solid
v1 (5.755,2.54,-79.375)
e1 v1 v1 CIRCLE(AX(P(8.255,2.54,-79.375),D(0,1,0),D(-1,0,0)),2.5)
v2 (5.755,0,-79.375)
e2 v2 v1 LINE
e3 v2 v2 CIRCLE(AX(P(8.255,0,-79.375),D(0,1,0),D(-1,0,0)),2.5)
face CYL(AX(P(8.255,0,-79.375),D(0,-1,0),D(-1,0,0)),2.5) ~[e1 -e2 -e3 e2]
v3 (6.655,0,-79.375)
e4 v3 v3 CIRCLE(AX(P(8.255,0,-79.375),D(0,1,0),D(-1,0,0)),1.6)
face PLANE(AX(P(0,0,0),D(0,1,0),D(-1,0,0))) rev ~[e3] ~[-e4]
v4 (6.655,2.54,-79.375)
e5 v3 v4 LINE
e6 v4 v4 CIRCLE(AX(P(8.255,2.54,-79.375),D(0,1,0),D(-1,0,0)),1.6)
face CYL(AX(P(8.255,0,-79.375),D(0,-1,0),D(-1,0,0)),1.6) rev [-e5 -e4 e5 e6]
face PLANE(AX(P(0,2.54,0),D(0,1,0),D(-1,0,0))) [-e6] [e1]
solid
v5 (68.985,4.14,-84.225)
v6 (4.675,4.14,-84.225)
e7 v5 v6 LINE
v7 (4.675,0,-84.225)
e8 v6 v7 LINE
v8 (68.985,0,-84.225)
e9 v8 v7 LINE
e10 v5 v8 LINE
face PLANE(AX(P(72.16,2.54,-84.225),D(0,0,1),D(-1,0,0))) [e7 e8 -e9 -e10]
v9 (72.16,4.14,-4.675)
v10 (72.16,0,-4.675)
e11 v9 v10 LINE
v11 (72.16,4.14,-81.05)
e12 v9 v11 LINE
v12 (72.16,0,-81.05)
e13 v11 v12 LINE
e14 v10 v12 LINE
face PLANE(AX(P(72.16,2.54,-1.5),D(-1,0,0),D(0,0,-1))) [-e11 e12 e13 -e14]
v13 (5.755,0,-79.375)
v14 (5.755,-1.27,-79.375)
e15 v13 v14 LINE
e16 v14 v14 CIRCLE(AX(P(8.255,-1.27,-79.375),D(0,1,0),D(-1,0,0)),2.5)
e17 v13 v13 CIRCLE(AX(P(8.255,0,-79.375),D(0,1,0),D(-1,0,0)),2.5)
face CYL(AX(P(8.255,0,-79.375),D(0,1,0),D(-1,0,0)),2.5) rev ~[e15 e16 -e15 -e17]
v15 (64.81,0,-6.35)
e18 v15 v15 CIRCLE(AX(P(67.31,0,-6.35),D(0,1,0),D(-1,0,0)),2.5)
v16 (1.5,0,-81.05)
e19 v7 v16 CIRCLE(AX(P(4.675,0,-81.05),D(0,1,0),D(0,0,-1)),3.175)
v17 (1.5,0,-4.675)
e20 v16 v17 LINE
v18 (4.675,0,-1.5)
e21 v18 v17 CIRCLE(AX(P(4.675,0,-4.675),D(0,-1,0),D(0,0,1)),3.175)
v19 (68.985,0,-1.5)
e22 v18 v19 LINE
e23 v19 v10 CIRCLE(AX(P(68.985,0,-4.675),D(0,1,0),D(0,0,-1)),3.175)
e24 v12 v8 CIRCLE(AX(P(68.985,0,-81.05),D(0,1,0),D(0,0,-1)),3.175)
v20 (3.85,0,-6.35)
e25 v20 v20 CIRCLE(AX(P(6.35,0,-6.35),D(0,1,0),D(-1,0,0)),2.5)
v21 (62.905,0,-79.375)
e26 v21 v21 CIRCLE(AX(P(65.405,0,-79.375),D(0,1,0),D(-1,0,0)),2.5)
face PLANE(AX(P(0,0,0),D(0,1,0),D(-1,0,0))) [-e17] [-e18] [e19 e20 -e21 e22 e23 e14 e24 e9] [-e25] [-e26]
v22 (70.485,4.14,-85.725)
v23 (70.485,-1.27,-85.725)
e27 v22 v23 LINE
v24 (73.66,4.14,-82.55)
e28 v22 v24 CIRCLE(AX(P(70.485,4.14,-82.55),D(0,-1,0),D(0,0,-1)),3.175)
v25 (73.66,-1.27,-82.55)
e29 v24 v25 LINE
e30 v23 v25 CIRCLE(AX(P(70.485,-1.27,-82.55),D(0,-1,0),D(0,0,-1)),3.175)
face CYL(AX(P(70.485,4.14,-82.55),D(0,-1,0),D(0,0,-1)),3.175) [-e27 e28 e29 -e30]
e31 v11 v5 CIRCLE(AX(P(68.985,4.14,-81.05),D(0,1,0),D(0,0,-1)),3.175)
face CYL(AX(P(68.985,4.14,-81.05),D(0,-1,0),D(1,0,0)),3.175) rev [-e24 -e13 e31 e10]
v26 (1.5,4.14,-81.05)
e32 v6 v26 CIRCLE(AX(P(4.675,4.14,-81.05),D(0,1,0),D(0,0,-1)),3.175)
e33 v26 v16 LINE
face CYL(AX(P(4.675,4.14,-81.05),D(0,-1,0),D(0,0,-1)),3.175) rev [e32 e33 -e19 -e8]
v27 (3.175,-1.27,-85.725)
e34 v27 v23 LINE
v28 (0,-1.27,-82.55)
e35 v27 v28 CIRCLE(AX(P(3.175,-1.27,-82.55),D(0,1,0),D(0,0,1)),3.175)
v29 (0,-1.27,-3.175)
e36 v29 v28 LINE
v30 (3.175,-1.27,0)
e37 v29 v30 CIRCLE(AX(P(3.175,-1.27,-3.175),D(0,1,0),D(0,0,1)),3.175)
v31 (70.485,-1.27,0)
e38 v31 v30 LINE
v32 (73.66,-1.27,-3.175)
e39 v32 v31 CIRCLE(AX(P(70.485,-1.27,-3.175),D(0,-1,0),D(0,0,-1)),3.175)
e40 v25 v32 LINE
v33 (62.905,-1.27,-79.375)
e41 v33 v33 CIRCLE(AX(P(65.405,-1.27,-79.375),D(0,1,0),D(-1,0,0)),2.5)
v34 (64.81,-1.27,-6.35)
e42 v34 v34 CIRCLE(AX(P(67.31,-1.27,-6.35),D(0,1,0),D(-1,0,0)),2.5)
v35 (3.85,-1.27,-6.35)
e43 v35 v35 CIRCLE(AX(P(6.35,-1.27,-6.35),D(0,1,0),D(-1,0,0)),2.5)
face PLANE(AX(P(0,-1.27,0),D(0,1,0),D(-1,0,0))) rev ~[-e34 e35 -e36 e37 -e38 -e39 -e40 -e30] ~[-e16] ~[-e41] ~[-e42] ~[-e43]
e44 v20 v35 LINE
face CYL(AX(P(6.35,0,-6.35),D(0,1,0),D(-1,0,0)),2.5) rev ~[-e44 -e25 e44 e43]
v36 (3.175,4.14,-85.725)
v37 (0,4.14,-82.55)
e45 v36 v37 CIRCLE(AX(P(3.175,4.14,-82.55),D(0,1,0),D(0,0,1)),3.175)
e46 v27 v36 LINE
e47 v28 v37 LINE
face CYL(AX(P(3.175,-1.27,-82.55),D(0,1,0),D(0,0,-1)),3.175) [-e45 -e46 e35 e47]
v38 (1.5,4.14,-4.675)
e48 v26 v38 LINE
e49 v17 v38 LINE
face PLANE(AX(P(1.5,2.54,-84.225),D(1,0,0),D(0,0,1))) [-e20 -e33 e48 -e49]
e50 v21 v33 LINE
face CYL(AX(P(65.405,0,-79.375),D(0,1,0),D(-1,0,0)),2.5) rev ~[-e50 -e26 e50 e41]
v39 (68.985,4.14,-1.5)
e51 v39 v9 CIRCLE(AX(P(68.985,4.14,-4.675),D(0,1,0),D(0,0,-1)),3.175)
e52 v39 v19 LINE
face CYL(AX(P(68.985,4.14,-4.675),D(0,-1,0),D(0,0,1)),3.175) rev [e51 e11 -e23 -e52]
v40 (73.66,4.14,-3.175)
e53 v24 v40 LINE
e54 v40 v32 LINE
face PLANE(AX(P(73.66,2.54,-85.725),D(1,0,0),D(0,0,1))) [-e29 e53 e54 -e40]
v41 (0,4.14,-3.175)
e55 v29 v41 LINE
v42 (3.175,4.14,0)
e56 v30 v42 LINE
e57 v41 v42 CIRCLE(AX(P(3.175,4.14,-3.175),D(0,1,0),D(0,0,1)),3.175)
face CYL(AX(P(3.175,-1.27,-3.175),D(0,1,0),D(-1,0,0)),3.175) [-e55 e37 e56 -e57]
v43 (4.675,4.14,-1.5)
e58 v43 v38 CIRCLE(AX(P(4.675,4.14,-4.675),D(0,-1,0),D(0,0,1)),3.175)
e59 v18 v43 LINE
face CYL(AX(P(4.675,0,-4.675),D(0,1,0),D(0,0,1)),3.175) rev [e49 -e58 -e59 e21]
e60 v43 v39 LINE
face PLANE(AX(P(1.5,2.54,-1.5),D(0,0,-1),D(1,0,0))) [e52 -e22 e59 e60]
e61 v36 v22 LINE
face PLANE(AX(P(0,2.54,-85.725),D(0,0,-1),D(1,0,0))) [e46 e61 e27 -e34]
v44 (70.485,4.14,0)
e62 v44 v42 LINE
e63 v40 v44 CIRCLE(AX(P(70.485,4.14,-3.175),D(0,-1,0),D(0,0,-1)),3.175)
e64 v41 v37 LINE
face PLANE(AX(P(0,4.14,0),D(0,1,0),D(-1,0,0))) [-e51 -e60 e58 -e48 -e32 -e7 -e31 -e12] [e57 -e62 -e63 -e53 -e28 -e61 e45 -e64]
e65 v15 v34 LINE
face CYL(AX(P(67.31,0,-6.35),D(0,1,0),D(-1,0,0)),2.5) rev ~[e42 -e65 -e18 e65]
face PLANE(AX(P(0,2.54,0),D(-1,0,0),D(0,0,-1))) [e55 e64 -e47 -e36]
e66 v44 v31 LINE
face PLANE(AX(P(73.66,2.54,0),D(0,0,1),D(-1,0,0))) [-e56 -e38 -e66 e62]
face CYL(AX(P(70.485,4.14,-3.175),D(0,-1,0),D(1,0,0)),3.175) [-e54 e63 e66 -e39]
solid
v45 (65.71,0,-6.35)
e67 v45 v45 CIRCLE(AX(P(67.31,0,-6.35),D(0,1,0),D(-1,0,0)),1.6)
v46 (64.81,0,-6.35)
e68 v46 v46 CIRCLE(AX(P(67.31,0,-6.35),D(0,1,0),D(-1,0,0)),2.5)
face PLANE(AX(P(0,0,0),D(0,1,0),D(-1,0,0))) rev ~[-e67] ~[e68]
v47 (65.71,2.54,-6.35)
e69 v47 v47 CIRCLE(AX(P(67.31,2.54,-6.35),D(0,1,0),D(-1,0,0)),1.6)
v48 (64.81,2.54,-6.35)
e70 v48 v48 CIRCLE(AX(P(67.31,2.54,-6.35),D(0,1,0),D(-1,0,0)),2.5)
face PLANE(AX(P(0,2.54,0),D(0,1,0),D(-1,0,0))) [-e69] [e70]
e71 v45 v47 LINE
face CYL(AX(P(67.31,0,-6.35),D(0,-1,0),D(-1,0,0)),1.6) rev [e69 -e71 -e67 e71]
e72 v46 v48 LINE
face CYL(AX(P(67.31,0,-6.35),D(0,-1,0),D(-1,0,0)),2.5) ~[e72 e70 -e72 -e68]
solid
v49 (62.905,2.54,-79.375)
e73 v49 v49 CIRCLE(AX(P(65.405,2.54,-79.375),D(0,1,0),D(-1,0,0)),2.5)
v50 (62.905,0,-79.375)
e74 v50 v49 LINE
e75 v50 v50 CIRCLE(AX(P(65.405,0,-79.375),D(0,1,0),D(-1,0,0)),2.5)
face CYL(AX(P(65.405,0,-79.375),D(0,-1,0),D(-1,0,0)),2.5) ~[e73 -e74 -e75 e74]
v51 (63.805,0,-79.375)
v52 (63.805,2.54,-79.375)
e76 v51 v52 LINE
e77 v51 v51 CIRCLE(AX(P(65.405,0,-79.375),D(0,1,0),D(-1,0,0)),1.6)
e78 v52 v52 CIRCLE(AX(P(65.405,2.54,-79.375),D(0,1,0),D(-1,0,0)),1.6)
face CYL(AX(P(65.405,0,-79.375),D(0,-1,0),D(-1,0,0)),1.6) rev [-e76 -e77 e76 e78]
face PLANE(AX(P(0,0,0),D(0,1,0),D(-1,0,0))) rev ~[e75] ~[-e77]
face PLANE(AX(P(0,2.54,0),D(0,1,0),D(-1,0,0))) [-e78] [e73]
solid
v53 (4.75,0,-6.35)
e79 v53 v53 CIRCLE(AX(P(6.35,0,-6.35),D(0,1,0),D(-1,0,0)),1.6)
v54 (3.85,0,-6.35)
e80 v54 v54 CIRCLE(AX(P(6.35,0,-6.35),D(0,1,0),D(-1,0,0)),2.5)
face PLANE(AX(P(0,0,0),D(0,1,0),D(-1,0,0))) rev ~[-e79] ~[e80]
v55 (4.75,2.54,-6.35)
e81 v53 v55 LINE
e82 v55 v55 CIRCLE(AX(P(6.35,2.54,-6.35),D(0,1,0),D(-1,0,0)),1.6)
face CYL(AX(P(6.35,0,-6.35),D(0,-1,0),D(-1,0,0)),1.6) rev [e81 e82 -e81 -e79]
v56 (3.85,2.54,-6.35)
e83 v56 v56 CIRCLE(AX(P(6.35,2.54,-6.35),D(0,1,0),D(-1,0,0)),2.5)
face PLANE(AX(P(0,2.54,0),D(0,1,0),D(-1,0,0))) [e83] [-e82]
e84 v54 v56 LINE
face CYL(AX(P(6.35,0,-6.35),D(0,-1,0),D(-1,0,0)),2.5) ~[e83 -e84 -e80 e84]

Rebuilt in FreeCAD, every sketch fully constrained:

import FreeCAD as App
import Part
import Sketcher
Q = App.Units.Quantity


def edges_at(feature, points):
    """Names of the edges that pass closest to the given points."""
    edges = feature.Shape.Edges
    near = lambda p: min(range(len(edges)), key=lambda i: edges[i].distToShape(Part.Vertex(*p))[0])
    return sorted({f"Edge{near(p) + 1}" for p in points})

doc = App.newDocument("Part")
params = doc.addObject("Spreadsheet::Sheet", "Params")
for row, (alias, value) in enumerate([
    ("sketch1_width", "2.9 in"),
    ("sketch1_height", "3.375 in"),
    ("pad1_length", "0.05 in"),
    ("sketch2_width", "2.9 in"),
    ("sketch2_height", "3.375 in"),
    ("pad2_length", "0.1 in"),
    ("sketch3_width", "2.9 in"),
    ("sketch3_height", "3.375 in"),
    ("pad3_length", "0.0629921 in"),
    ("fillet_radius", "0.125 in"),
], start=1):
    params.set(f"A{row}", alias)
    params.set(f"B{row}", "=" + value)
    params.setAlias(f"B{row}", alias)

body = doc.addObject("PartDesign::Body", "Body")
body.AllowCompound = True

sketch1 = body.newObject("Sketcher::SketchObject", "Sketch")
sketch1.AttachmentSupport = (doc.getObject("XZ_Plane"), [""])
sketch1.MapMode = "FlatFace"
sketch1.addGeometry(Part.LineSegment(App.Vector(73.7, -85.7, 0), App.Vector(0, -85.7, 0)), False)
sketch1.addGeometry(Part.LineSegment(App.Vector(0, -85.7, 0), App.Vector(0, 0, 0)), False)
sketch1.addGeometry(Part.LineSegment(App.Vector(0, 0, 0), App.Vector(73.7, 0, 0)), False)
sketch1.addGeometry(Part.LineSegment(App.Vector(73.7, 0, 0), App.Vector(73.7, -85.7, 0)), False)
sketch1.addGeometry(Part.Circle(App.Vector(65.4, -79.4, 0), App.Vector(0, 0, 1), 2.5), False)
sketch1.addGeometry(Part.Circle(App.Vector(8.3, -79.4, 0), App.Vector(0, 0, 1), 2.5), False)
sketch1.addGeometry(Part.Circle(App.Vector(67.3, -6.3, 0), App.Vector(0, 0, 1), 2.5), False)
sketch1.addGeometry(Part.Circle(App.Vector(6.3, -6.3, 0), App.Vector(0, 0, 1), 2.5), False)
sketch1.addConstraint(Sketcher.Constraint("Coincident", 0, 2, 1, 1))
sketch1.addConstraint(Sketcher.Constraint("Coincident", 1, 2, 2, 1))
sketch1.addConstraint(Sketcher.Constraint("Coincident", 2, 2, 3, 1))
sketch1.addConstraint(Sketcher.Constraint("Coincident", 3, 2, 0, 1))
sketch1.addConstraint(Sketcher.Constraint("Horizontal", 0))
sketch1.addConstraint(Sketcher.Constraint("Vertical", 1))
sketch1.addConstraint(Sketcher.Constraint("Horizontal", 2))
sketch1.addConstraint(Sketcher.Constraint("Vertical", 3))
sketch1.addConstraint(Sketcher.Constraint("Coincident", 1, 2, -1, 1))
sketch1.addConstraint(Sketcher.Constraint("Equal", 4, 5))
sketch1.addConstraint(Sketcher.Constraint("Equal", 5, 6))
sketch1.addConstraint(Sketcher.Constraint("Equal", 6, 7))
sketch1.addConstraint(Sketcher.Constraint("Horizontal", 4, 3, 5, 3))
sketch1.addConstraint(Sketcher.Constraint("Horizontal", 6, 3, 7, 3))
sketch1.addConstraint(Sketcher.Constraint("DistanceX", 7, 3, 6, 3, Q("2.4 in")))
sketch1.addConstraint(Sketcher.Constraint("Diameter", 4, Q("5 mm")))
sketch1.addConstraint(Sketcher.Constraint("DistanceX", 5, 3, 4, 3, Q("2.25 in")))
sketch1.addConstraint(Sketcher.Constraint("DistanceX", 0, 2, 0, 1, Q("2.9 in")))
sketch1.addConstraint(Sketcher.Constraint("DistanceY", 4, 3, 6, 3, Q("2.875 in")))
sketch1.addConstraint(Sketcher.Constraint("DistanceY", 1, 1, 1, 2, Q("3.375 in")))
sketch1.addConstraint(Sketcher.Constraint("DistanceX", -1, 1, 6, 3, Q("2.65 in")))
sketch1.addConstraint(Sketcher.Constraint("DistanceY", 6, 3, -1, 1, Q("0.25 in")))
sketch1.addConstraint(Sketcher.Constraint("DistanceX", -1, 1, 4, 3, Q("2.575 in")))
sketch1.setExpression("Constraints[17]", "Params.sketch1_width")
sketch1.setExpression("Constraints[19]", "Params.sketch1_height")
pad1 = body.newObject("PartDesign::Pad", "Pad")
pad1.Profile = sketch1
pad1.setExpression("Length", "Params.pad1_length")

sketch2 = body.newObject("Sketcher::SketchObject", "Sketch001")
sketch2.AttachmentSupport = (doc.getObject("XZ_Plane"), [""])
sketch2.MapMode = "FlatFace"
sketch2.addGeometry(Part.LineSegment(App.Vector(73.7, -85.7, 0), App.Vector(0, -85.7, 0)), False)
sketch2.addGeometry(Part.LineSegment(App.Vector(0, -85.7, 0), App.Vector(0, 0, 0)), False)
sketch2.addGeometry(Part.LineSegment(App.Vector(0, 0, 0), App.Vector(73.7, 0, 0)), False)
sketch2.addGeometry(Part.LineSegment(App.Vector(73.7, 0, 0), App.Vector(73.7, -85.7, 0)), False)
sketch2.addGeometry(Part.LineSegment(App.Vector(72.2, -1.5, 0), App.Vector(1.5, -1.5, 0)), False)
sketch2.addGeometry(Part.LineSegment(App.Vector(1.5, -1.5, 0), App.Vector(1.5, -84.2, 0)), False)
sketch2.addGeometry(Part.LineSegment(App.Vector(1.5, -84.2, 0), App.Vector(72.2, -84.2, 0)), False)
sketch2.addGeometry(Part.LineSegment(App.Vector(72.2, -84.2, 0), App.Vector(72.2, -1.5, 0)), False)
sketch2.addGeometry(Part.Circle(App.Vector(6.3, -6.3, 0), App.Vector(0, 0, 1), 2.5), False)
sketch2.addGeometry(Part.Circle(App.Vector(6.3, -6.3, 0), App.Vector(0, 0, 1), 1.6), False)
sketch2.addGeometry(Part.Circle(App.Vector(8.3, -79.4, 0), App.Vector(0, 0, 1), 2.5), False)
sketch2.addGeometry(Part.Circle(App.Vector(8.3, -79.4, 0), App.Vector(0, 0, 1), 1.6), False)
sketch2.addGeometry(Part.Circle(App.Vector(65.4, -79.4, 0), App.Vector(0, 0, 1), 2.5), False)
sketch2.addGeometry(Part.Circle(App.Vector(65.4, -79.4, 0), App.Vector(0, 0, 1), 1.6), False)
sketch2.addGeometry(Part.Circle(App.Vector(67.3, -6.3, 0), App.Vector(0, 0, 1), 2.5), False)
sketch2.addGeometry(Part.Circle(App.Vector(67.3, -6.3, 0), App.Vector(0, 0, 1), 1.6), False)
sketch2.addConstraint(Sketcher.Constraint("Coincident", 0, 2, 1, 1))
sketch2.addConstraint(Sketcher.Constraint("Coincident", 1, 2, 2, 1))
sketch2.addConstraint(Sketcher.Constraint("Coincident", 2, 2, 3, 1))
sketch2.addConstraint(Sketcher.Constraint("Coincident", 3, 2, 0, 1))
sketch2.addConstraint(Sketcher.Constraint("Coincident", 4, 2, 5, 1))
sketch2.addConstraint(Sketcher.Constraint("Coincident", 5, 2, 6, 1))
sketch2.addConstraint(Sketcher.Constraint("Coincident", 6, 2, 7, 1))
sketch2.addConstraint(Sketcher.Constraint("Coincident", 7, 2, 4, 1))
sketch2.addConstraint(Sketcher.Constraint("Horizontal", 0))
sketch2.addConstraint(Sketcher.Constraint("Vertical", 1))
sketch2.addConstraint(Sketcher.Constraint("Horizontal", 2))
sketch2.addConstraint(Sketcher.Constraint("Vertical", 3))
sketch2.addConstraint(Sketcher.Constraint("Horizontal", 4))
sketch2.addConstraint(Sketcher.Constraint("Vertical", 5))
sketch2.addConstraint(Sketcher.Constraint("Horizontal", 6))
sketch2.addConstraint(Sketcher.Constraint("Vertical", 7))
sketch2.addConstraint(Sketcher.Constraint("Coincident", 1, 2, -1, 1))
sketch2.addConstraint(Sketcher.Constraint("Coincident", 9, 3, 8, 3))
sketch2.addConstraint(Sketcher.Constraint("Coincident", 11, 3, 10, 3))
sketch2.addConstraint(Sketcher.Constraint("Coincident", 13, 3, 12, 3))
sketch2.addConstraint(Sketcher.Constraint("Coincident", 15, 3, 14, 3))
sketch2.addConstraint(Sketcher.Constraint("Equal", 8, 10))
sketch2.addConstraint(Sketcher.Constraint("Equal", 9, 11))
sketch2.addConstraint(Sketcher.Constraint("Equal", 10, 12))
sketch2.addConstraint(Sketcher.Constraint("Equal", 11, 13))
sketch2.addConstraint(Sketcher.Constraint("Equal", 12, 14))
sketch2.addConstraint(Sketcher.Constraint("Equal", 13, 15))
sketch2.addConstraint(Sketcher.Constraint("Horizontal", 11, 3, 12, 3))
sketch2.addConstraint(Sketcher.Constraint("Horizontal", 9, 3, 14, 3))
sketch2.addConstraint(Sketcher.Constraint("DistanceX", 8, 3, 14, 3, Q("2.4 in")))
sketch2.addConstraint(Sketcher.Constraint("Diameter", 8, Q("5 mm")))
sketch2.addConstraint(Sketcher.Constraint("Diameter", 9, Q("3.2 mm")))
sketch2.addConstraint(Sketcher.Constraint("DistanceX", 10, 3, 12, 3, Q("2.25 in")))
sketch2.addConstraint(Sketcher.Constraint("DistanceX", 0, 2, 0, 1, Q("2.9 in")))
sketch2.addConstraint(Sketcher.Constraint("DistanceY", 10, 3, 8, 3, Q("2.875 in")))
sketch2.addConstraint(Sketcher.Constraint("DistanceY", 1, 1, 1, 2, Q("3.375 in")))
sketch2.addConstraint(Sketcher.Constraint("DistanceX", -1, 1, 8, 3, Q("0.25 in")))
sketch2.addConstraint(Sketcher.Constraint("DistanceY", 8, 3, -1, 1, Q("0.25 in")))
sketch2.addConstraint(Sketcher.Constraint("DistanceX", -1, 1, 4, 2, Q("1.5 mm")))
sketch2.addConstraint(Sketcher.Constraint("DistanceY", 4, 2, -1, 1, Q("1.5 mm")))
sketch2.addConstraint(Sketcher.Constraint("DistanceY", 0, 2, 5, 2, Q("1.5 mm")))
sketch2.addConstraint(Sketcher.Constraint("DistanceX", 6, 2, 3, 2, Q("1.5 mm")))
sketch2.addConstraint(Sketcher.Constraint("DistanceX", -1, 1, 10, 3, Q("0.325 in")))
sketch2.setExpression("Constraints[33]", "Params.sketch2_width")
sketch2.setExpression("Constraints[35]", "Params.sketch2_height")
pad2 = body.newObject("PartDesign::Pad", "Pad001")
pad2.Profile = sketch2
pad2.setExpression("Length", "Params.pad2_length")
pad2.Reversed = True

sketch3 = body.newObject("Sketcher::SketchObject", "Sketch002")
sketch3.AttachmentSupport = (doc.getObject("XZ_Plane"), [""])
sketch3.MapMode = "FlatFace"
sketch3.AttachmentOffset = App.Placement(App.Vector(0, 0, -0.1 * 25.4), App.Rotation())
sketch3.addGeometry(Part.LineSegment(App.Vector(74, -86, 0), App.Vector(0, -86, 0)), False)
sketch3.addGeometry(Part.LineSegment(App.Vector(0, -86, 0), App.Vector(0, 0, 0)), False)
sketch3.addGeometry(Part.LineSegment(App.Vector(0, 0, 0), App.Vector(74, 0, 0)), False)
sketch3.addGeometry(Part.LineSegment(App.Vector(74, 0, 0), App.Vector(74, -86, 0)), False)
sketch3.addGeometry(Part.LineSegment(App.Vector(72, -2, 0), App.Vector(2, -2, 0)), False)
sketch3.addGeometry(Part.LineSegment(App.Vector(2, -2, 0), App.Vector(2, -84, 0)), False)
sketch3.addGeometry(Part.LineSegment(App.Vector(2, -84, 0), App.Vector(72, -84, 0)), False)
sketch3.addGeometry(Part.LineSegment(App.Vector(72, -84, 0), App.Vector(72, -2, 0)), False)
sketch3.addConstraint(Sketcher.Constraint("Coincident", 0, 2, 1, 1))
sketch3.addConstraint(Sketcher.Constraint("Coincident", 1, 2, 2, 1))
sketch3.addConstraint(Sketcher.Constraint("Coincident", 2, 2, 3, 1))
sketch3.addConstraint(Sketcher.Constraint("Coincident", 3, 2, 0, 1))
sketch3.addConstraint(Sketcher.Constraint("Coincident", 4, 2, 5, 1))
sketch3.addConstraint(Sketcher.Constraint("Coincident", 5, 2, 6, 1))
sketch3.addConstraint(Sketcher.Constraint("Coincident", 6, 2, 7, 1))
sketch3.addConstraint(Sketcher.Constraint("Coincident", 7, 2, 4, 1))
sketch3.addConstraint(Sketcher.Constraint("Horizontal", 0))
sketch3.addConstraint(Sketcher.Constraint("Vertical", 1))
sketch3.addConstraint(Sketcher.Constraint("Horizontal", 2))
sketch3.addConstraint(Sketcher.Constraint("Vertical", 3))
sketch3.addConstraint(Sketcher.Constraint("Horizontal", 4))
sketch3.addConstraint(Sketcher.Constraint("Vertical", 5))
sketch3.addConstraint(Sketcher.Constraint("Horizontal", 6))
sketch3.addConstraint(Sketcher.Constraint("Vertical", 7))
sketch3.addConstraint(Sketcher.Constraint("Coincident", 1, 2, -1, 1))
sketch3.addConstraint(Sketcher.Constraint("DistanceX", 0, 2, 0, 1, Q("2.9 in")))
sketch3.addConstraint(Sketcher.Constraint("DistanceY", 1, 1, 1, 2, Q("3.375 in")))
sketch3.addConstraint(Sketcher.Constraint("DistanceX", -1, 1, 4, 2, Q("1.5 mm")))
sketch3.addConstraint(Sketcher.Constraint("DistanceY", 4, 2, -1, 1, Q("1.5 mm")))
sketch3.addConstraint(Sketcher.Constraint("DistanceY", 0, 2, 5, 2, Q("1.5 mm")))
sketch3.addConstraint(Sketcher.Constraint("DistanceX", 6, 2, 3, 2, Q("1.5 mm")))
sketch3.setExpression("Constraints[17]", "Params.sketch3_width")
sketch3.setExpression("Constraints[18]", "Params.sketch3_height")
pad3 = body.newObject("PartDesign::Pad", "Pad002")
pad3.Profile = sketch3
pad3.setExpression("Length", "Params.pad3_length")
pad3.Reversed = True
doc.recompute()

fillet = body.newObject("PartDesign::Fillet", "Fillet")
fillet.Base = (pad3, edges_at(pad3, [
    (0, 1.435, 0),
    (1.5, 2.07, -1.5),
    (1.5, 2.07, -84.225),
    (0, 1.435, -85.725),
    (72.16, 2.07, -84.225),
    (73.66, 1.435, -85.725),
    (72.16, 2.07, -1.5),
    (73.66, 1.435, 0),
]))
fillet.setExpression("Radius", "Params.fillet_radius")

doc.recompute()
